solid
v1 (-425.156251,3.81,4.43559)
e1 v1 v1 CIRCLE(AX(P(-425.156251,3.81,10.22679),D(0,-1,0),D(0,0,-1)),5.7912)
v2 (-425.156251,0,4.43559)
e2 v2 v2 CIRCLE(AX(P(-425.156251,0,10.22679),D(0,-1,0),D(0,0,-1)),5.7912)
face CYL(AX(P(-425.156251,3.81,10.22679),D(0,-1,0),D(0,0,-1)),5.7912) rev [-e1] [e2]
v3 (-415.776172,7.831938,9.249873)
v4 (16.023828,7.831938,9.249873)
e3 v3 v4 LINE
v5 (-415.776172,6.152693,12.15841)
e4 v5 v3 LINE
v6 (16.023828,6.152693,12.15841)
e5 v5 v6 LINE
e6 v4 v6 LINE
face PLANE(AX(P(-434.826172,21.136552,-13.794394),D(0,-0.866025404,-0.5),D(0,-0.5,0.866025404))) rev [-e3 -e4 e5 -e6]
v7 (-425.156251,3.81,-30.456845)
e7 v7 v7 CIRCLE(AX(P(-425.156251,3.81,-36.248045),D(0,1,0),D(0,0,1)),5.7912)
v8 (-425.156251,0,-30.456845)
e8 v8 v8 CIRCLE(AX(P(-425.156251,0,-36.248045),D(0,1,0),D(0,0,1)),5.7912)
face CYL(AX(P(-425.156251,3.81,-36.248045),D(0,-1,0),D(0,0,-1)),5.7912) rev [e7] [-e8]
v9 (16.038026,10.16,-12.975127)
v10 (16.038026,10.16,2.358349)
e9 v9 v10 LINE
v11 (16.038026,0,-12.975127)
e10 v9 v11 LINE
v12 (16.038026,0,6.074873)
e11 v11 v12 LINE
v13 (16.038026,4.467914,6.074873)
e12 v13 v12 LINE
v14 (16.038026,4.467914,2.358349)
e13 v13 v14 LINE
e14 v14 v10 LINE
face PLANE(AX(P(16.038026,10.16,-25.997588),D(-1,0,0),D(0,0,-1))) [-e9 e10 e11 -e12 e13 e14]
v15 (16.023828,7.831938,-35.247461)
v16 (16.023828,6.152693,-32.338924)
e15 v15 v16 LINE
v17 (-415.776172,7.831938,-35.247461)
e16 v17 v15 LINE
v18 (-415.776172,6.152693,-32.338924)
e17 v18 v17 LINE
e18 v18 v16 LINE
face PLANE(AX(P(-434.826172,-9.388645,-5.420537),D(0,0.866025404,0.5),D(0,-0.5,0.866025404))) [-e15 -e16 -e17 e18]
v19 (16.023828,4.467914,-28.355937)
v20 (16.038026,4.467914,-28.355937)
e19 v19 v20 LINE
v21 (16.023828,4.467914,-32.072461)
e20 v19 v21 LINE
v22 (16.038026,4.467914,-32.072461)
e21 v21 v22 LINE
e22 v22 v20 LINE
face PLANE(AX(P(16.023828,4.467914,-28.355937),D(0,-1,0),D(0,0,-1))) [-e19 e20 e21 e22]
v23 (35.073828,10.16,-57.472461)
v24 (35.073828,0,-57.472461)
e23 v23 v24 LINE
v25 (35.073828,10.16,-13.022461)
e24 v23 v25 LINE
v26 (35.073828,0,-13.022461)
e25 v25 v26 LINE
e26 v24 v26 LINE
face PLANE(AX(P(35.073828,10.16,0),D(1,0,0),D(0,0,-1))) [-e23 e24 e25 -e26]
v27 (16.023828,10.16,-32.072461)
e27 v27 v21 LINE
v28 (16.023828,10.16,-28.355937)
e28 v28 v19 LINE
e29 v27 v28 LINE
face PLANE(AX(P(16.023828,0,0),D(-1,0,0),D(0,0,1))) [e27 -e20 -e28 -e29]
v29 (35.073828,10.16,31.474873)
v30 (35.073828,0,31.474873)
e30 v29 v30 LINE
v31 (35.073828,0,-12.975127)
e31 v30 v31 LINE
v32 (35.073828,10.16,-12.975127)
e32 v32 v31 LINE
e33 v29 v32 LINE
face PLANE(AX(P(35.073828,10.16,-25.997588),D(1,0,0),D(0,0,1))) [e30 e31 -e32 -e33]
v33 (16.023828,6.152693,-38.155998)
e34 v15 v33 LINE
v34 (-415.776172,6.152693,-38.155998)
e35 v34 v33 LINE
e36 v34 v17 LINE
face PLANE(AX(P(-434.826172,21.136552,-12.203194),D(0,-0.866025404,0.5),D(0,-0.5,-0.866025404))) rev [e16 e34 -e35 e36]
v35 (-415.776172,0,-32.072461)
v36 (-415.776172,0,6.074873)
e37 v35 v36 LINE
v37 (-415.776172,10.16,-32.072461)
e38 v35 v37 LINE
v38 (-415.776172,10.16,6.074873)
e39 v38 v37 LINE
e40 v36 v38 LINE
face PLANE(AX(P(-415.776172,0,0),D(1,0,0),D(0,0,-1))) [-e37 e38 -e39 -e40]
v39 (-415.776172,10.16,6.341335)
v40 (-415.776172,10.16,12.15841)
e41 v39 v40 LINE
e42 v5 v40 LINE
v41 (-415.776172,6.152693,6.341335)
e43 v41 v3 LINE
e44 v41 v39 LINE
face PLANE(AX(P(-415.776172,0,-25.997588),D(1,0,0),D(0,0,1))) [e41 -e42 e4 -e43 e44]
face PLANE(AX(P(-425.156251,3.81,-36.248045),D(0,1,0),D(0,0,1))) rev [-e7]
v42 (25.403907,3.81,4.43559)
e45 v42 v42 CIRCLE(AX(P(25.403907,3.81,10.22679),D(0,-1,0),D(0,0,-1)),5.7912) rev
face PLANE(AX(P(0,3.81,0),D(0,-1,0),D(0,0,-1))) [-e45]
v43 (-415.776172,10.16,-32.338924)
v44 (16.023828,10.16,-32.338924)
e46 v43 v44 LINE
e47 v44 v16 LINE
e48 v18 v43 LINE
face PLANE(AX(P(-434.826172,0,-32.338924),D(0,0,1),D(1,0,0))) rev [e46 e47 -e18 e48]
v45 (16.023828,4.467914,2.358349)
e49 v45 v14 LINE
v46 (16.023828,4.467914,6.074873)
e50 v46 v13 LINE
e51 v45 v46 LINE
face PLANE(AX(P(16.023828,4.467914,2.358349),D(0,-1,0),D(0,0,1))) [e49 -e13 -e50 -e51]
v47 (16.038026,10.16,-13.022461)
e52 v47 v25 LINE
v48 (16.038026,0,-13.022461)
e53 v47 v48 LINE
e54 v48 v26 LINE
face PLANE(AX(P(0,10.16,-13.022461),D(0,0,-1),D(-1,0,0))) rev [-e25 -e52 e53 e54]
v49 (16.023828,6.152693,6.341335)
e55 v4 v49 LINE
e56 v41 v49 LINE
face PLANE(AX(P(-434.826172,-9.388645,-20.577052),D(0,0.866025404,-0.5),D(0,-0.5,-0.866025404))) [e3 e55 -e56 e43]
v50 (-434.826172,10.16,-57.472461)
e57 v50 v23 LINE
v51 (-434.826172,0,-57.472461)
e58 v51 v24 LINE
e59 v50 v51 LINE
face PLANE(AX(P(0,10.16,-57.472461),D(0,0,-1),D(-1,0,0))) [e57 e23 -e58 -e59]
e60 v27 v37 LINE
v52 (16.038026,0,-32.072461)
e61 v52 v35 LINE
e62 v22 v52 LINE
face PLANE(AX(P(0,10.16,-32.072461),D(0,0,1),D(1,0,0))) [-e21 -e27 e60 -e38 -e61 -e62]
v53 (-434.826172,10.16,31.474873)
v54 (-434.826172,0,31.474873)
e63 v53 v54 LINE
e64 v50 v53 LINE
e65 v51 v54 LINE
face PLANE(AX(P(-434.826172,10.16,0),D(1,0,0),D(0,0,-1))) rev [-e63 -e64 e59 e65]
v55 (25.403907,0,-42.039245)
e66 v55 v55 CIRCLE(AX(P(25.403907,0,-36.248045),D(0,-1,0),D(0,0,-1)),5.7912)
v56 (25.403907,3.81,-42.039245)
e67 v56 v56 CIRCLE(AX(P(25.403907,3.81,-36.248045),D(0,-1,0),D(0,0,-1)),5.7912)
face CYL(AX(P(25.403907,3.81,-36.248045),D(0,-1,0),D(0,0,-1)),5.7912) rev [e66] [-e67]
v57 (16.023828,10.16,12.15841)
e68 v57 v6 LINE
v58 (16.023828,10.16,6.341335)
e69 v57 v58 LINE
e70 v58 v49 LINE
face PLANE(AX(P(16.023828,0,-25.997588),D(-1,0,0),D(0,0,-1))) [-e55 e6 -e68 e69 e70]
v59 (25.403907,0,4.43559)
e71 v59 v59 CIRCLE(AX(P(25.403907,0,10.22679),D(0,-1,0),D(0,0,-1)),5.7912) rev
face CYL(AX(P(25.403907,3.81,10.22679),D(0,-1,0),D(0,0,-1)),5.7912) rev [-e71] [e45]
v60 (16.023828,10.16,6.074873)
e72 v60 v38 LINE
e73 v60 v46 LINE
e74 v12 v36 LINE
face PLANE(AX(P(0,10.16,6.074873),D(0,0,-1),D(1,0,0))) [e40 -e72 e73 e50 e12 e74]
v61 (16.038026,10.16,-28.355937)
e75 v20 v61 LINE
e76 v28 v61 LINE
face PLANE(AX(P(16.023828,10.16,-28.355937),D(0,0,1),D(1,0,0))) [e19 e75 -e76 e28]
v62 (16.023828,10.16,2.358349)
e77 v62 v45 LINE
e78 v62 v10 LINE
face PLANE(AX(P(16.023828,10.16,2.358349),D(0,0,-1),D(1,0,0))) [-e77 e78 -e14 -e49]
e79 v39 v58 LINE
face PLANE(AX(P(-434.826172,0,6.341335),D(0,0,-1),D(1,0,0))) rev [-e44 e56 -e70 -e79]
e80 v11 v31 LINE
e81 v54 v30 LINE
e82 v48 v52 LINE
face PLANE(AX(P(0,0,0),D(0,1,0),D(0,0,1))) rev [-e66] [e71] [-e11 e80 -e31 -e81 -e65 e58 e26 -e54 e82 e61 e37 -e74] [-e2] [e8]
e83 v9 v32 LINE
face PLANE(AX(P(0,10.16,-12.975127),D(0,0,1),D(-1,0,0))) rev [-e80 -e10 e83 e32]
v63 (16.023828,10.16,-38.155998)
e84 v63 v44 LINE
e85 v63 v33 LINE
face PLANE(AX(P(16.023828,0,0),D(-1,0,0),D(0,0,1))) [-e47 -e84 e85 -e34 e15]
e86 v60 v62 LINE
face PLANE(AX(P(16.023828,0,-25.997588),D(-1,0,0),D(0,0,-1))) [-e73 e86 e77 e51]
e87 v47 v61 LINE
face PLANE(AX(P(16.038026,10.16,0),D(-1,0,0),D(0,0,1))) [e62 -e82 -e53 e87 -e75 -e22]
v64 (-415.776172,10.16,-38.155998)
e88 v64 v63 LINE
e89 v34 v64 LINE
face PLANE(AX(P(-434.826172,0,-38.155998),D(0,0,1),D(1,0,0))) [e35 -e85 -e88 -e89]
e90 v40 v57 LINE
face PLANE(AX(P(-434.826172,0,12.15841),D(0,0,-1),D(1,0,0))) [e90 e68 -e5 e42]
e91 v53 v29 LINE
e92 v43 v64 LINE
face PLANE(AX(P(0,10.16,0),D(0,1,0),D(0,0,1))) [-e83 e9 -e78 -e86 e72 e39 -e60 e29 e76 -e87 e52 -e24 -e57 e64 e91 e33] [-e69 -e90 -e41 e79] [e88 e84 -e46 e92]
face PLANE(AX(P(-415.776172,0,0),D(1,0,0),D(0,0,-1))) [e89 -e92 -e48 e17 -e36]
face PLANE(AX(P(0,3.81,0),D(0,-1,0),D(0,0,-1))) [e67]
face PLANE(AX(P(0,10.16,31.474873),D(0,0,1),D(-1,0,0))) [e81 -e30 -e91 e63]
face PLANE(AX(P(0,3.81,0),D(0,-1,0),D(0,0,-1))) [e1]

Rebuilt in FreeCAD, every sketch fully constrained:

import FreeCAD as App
import Part
import Sketcher

V = App.Vector
Q = App.Units.Quantity


def add_polygon(sketch, points):
    """Adds a closed chain of lines whose ends are joined by coincident constraints."""
    first, n = sketch.GeometryCount, len(points)
    for a, b in zip(points, points[1:] + points[:1]):
        sketch.addGeometry(Part.LineSegment(App.Vector(*a, 0), App.Vector(*b, 0)), False)
    for i in range(n):
        sketch.addConstraint(Sketcher.Constraint("Coincident", first + i, 2, first + (i + 1) % n, 1))

doc = App.newDocument("Part")
params = doc.addObject("Spreadsheet::Sheet", "Params")
for row, (alias, value) in enumerate([
    ("sketch1_height", "1.75 in"),
    ("pad1_length", "0.4 in"),
    ("pocket1_length", "18.5 in"),
    ("pad2_length", "0.75 in"),
    ("sketch4_width", "0.4 in"),
    ("pad3_length", "0.75 in"),
    ("sketch5_diameter", "0.456 in"),
    ("pocket2_length", "0.15 in"),
], start=1):
    params.set(f"A{row}", alias)
    params.set(f"B{row}", "=" + value)
    params.setAlias(f"B{row}", alias)

body = doc.addObject("PartDesign::Body", "Body")

sketch1 = body.newObject("Sketcher::SketchObject", "Sketch")
sketch1.AttachmentSupport = (doc.getObject("XZ_Plane"), [""])
sketch1.MapMode = "FlatFace"
add_polygon(sketch1, [(16.038026, -57.472461), (-434.826172, -57.472461), (-434.826172, -13.022461), (-415.790369, -13.022461), (-415.790369, -32.072461), (16.038026, -32.072461), (16.038026, -13.022461), (35.073828, -13.022461), (35.073828, -57.472461)])
sketch1.addConstraint([
    Sketcher.Constraint("Horizontal", 0),
    Sketcher.Constraint("Vertical", 1),
    Sketcher.Constraint("Horizontal", 2),
    Sketcher.Constraint("Vertical", 3),
    Sketcher.Constraint("Horizontal", 4),
    Sketcher.Constraint("Vertical", 5),
    Sketcher.Constraint("Horizontal", 6),
    Sketcher.Constraint("Vertical", 7),
    Sketcher.Constraint("Horizontal", 8),
    Sketcher.Constraint("Horizontal", 2, 2, 5, 2),
    Sketcher.Constraint("Vertical", 5, 2, 8, 2),
    Sketcher.Constraint("Equal", 2, 6),
    Sketcher.Constraint("DistanceY", 0, 2, 3, 2, Q("1 in")),
    Sketcher.Constraint("DistanceY", 1, 1, 1, 2, Q("1.75 in")),
    Sketcher.Constraint("DistanceX", 1, 2, 6, 2, Q("18.5 in")),
    Sketcher.Constraint("DistanceX", 0, 2, 0, 1, 450.864197),
    Sketcher.Constraint("DistanceX", 0, 2, -1, 1, 434.826172),
    Sketcher.Constraint("DistanceY", 0, 2, -1, 1, 57.472461),
])
sketch1.setExpression("Constraints[22]", "Params.sketch1_height")
pad1 = body.newObject("PartDesign::Pad", "Pad")
pad1.Profile = sketch1
pad1.setExpression("Length", "Params.pad1_length")
pad1.Reversed = True

sketch2 = body.newObject("Sketcher::SketchObject", "Sketch001")
sketch2.AttachmentSupport = (doc.getObject("YZ_Plane"), [""])
sketch2.MapMode = "FlatFace"
sketch2.AttachmentOffset = App.Placement(V(0, 0, 35.073828), App.Rotation())
add_polygon(sketch2, [(6.152693, -38.155998), (10.16, -38.155998), (10.16, -32.338924), (6.152693, -32.338924), (7.831938, -35.247461)])
sketch2.addConstraint([
    Sketcher.Constraint("Horizontal", 0),
    Sketcher.Constraint("Vertical", 1),
    Sketcher.Constraint("Horizontal", 2),
    Sketcher.Constraint("Vertical", 2, 2, 4, 2),
    Sketcher.Constraint("Equal", 3, 4),
    Sketcher.Constraint("Angle", 3, Q("-60 deg")),
    Sketcher.Constraint("DistanceX", -1, 1, 0, 2, Q("0.4 in")),
    Sketcher.Constraint("DistanceY", 0, 2, -1, 1, 38.155998),
    Sketcher.Constraint("Distance", 3, 3.35849),
    Sketcher.Constraint("DistanceX", 0, 1, 0, 2, 4.007307),
])
pocket1 = body.newObject("PartDesign::Pocket", "Pocket")
pocket1.Profile = sketch2
pocket1.setExpression("Length", "Params.pocket1_length")

sketch3 = body.newObject("Sketcher::SketchObject", "Sketch002")
sketch3.AttachmentSupport = (doc.getObject("YZ_Plane"), [""])
sketch3.MapMode = "FlatFace"
sketch3.AttachmentOffset = App.Placement(V(0, 0, 35.073828), App.Rotation())
add_polygon(sketch3, [(10.16, -28.355937), (4.467914, -28.355937), (4.467914, -40.75885), (10.16, -40.75885)])
sketch3.addConstraint([
    Sketcher.Constraint("Horizontal", 0),
    Sketcher.Constraint("Vertical", 1),
    Sketcher.Constraint("Horizontal", 2),
    Sketcher.Constraint("Vertical", 3),
    Sketcher.Constraint("DistanceX", -1, 1, 2, 2, Q("0.4 in")),
    Sketcher.Constraint("DistanceX", 0, 2, 0, 1, 5.692086),
    Sketcher.Constraint("DistanceY", 1, 2, 1, 1, 12.402913),
    Sketcher.Constraint("DistanceY", 1, 2, -1, 1, 40.75885),
])
pad2 = body.newObject("PartDesign::Pad", "Pad001")
pad2.Profile = sketch3
pad2.setExpression("Length", "Params.pad2_length")
pad2.Reversed = True

sketch4 = body.newObject("Sketcher::SketchObject", "Sketch003")
sketch4.AttachmentSupport = (doc.getObject("YZ_Plane"), [""])
sketch4.MapMode = "FlatFace"
sketch4.AttachmentOffset = App.Placement(V(0, 0, -434.826172), App.Rotation())
add_polygon(sketch4, [(10.16, -57.472461), (0, -57.472461), (0, -12.998794), (10.16, -12.998794)])
sketch4.addConstraint([
    Sketcher.Constraint("Horizontal", 0),
    Sketcher.Constraint("Vertical", 1),
    Sketcher.Constraint("Horizontal", 2),
    Sketcher.Constraint("Vertical", 3),
    Sketcher.Constraint("PointOnObject", 0, 2, -2),
    Sketcher.Constraint("DistanceX", 0, 2, 0, 1, Q("0.4 in")),
    Sketcher.Constraint("DistanceY", 1, 1, 1, 2, 44.473667),
    Sketcher.Constraint("DistanceY", 0, 2, -1, 1, 57.472461),
])
sketch4.setExpression("Constraints[9]", "Params.sketch4_width")
pad3 = body.newObject("PartDesign::Pad", "Pad002")
pad3.Profile = sketch4
pad3.setExpression("Length", "Params.pad3_length")
body2 = doc.addObject("PartDesign::Body", "Body001")
doc.recompute()

body2.BaseFeature = body
doc.recompute()

mirroring = doc.addObject("Part::Mirroring", "Mirroring")
mirroring.Source = body
mirroring.Base = V(-415.776172, 10.16, -12.998794)
mirroring.Normal = V(0, 0, 1)
body3 = doc.addObject("PartDesign::Body", "Body002")
body3.BaseFeature = mirroring
boolean = body2.newObject("PartDesign::Boolean", "Boolean")
boolean.Type = "Fuse"
boolean.addObjects([body3])
doc.recompute()

sketch5 = body2.newObject("Sketcher::SketchObject", "Sketch004")
sketch5.AttachmentSupport = (doc.getObject("XZ_Plane001"), [""])
sketch5.MapMode = "FlatFace"
sketch5.addGeometry([
    Part.Circle(V(-425.156251, 10.22679, 0), V(0, 0, 1), 5.7912),
    Part.Circle(V(25.403907, -36.248045, 0), V(0, 0, 1), 5.7912),
    Part.Circle(V(25.403907, 10.22679, 0), V(0, 0, 1), 5.7912),
    Part.Circle(V(-425.156251, -36.248045, 0), V(0, 0, 1), 5.7912),
], False)
sketch5.addConstraint([
    Sketcher.Constraint("Equal", 0, 1),
    Sketcher.Constraint("Equal", 1, 2),
    Sketcher.Constraint("Equal", 2, 3),
    Sketcher.Constraint("Horizontal", 0, 3, 2, 3),
    Sketcher.Constraint("Horizontal", 1, 3, 3, 3),
    Sketcher.Constraint("Vertical", 1, 3, 2, 3),
    Sketcher.Constraint("Vertical", 0, 3, 3, 3),
    Sketcher.Constraint("Diameter", 0, Q("0.456 in")),
    Sketcher.Constraint("DistanceX", 0, 3, -1, 1, 425.156251),
    Sketcher.Constraint("DistanceY", -1, 1, 0, 3, 10.22679),
    Sketcher.Constraint("DistanceX", 0, 3, 1, 3, 450.560159),
    Sketcher.Constraint("DistanceY", 1, 3, -1, 1, 36.248045),
])
sketch5.setExpression("Constraints[7]", "Params.sketch5_diameter")
pocket2 = body2.newObject("PartDesign::Pocket", "Pocket001")
pocket2.Profile = sketch5
pocket2.setExpression("Length", "Params.pocket2_length")
mirroring.Visibility = False

doc.recompute()
